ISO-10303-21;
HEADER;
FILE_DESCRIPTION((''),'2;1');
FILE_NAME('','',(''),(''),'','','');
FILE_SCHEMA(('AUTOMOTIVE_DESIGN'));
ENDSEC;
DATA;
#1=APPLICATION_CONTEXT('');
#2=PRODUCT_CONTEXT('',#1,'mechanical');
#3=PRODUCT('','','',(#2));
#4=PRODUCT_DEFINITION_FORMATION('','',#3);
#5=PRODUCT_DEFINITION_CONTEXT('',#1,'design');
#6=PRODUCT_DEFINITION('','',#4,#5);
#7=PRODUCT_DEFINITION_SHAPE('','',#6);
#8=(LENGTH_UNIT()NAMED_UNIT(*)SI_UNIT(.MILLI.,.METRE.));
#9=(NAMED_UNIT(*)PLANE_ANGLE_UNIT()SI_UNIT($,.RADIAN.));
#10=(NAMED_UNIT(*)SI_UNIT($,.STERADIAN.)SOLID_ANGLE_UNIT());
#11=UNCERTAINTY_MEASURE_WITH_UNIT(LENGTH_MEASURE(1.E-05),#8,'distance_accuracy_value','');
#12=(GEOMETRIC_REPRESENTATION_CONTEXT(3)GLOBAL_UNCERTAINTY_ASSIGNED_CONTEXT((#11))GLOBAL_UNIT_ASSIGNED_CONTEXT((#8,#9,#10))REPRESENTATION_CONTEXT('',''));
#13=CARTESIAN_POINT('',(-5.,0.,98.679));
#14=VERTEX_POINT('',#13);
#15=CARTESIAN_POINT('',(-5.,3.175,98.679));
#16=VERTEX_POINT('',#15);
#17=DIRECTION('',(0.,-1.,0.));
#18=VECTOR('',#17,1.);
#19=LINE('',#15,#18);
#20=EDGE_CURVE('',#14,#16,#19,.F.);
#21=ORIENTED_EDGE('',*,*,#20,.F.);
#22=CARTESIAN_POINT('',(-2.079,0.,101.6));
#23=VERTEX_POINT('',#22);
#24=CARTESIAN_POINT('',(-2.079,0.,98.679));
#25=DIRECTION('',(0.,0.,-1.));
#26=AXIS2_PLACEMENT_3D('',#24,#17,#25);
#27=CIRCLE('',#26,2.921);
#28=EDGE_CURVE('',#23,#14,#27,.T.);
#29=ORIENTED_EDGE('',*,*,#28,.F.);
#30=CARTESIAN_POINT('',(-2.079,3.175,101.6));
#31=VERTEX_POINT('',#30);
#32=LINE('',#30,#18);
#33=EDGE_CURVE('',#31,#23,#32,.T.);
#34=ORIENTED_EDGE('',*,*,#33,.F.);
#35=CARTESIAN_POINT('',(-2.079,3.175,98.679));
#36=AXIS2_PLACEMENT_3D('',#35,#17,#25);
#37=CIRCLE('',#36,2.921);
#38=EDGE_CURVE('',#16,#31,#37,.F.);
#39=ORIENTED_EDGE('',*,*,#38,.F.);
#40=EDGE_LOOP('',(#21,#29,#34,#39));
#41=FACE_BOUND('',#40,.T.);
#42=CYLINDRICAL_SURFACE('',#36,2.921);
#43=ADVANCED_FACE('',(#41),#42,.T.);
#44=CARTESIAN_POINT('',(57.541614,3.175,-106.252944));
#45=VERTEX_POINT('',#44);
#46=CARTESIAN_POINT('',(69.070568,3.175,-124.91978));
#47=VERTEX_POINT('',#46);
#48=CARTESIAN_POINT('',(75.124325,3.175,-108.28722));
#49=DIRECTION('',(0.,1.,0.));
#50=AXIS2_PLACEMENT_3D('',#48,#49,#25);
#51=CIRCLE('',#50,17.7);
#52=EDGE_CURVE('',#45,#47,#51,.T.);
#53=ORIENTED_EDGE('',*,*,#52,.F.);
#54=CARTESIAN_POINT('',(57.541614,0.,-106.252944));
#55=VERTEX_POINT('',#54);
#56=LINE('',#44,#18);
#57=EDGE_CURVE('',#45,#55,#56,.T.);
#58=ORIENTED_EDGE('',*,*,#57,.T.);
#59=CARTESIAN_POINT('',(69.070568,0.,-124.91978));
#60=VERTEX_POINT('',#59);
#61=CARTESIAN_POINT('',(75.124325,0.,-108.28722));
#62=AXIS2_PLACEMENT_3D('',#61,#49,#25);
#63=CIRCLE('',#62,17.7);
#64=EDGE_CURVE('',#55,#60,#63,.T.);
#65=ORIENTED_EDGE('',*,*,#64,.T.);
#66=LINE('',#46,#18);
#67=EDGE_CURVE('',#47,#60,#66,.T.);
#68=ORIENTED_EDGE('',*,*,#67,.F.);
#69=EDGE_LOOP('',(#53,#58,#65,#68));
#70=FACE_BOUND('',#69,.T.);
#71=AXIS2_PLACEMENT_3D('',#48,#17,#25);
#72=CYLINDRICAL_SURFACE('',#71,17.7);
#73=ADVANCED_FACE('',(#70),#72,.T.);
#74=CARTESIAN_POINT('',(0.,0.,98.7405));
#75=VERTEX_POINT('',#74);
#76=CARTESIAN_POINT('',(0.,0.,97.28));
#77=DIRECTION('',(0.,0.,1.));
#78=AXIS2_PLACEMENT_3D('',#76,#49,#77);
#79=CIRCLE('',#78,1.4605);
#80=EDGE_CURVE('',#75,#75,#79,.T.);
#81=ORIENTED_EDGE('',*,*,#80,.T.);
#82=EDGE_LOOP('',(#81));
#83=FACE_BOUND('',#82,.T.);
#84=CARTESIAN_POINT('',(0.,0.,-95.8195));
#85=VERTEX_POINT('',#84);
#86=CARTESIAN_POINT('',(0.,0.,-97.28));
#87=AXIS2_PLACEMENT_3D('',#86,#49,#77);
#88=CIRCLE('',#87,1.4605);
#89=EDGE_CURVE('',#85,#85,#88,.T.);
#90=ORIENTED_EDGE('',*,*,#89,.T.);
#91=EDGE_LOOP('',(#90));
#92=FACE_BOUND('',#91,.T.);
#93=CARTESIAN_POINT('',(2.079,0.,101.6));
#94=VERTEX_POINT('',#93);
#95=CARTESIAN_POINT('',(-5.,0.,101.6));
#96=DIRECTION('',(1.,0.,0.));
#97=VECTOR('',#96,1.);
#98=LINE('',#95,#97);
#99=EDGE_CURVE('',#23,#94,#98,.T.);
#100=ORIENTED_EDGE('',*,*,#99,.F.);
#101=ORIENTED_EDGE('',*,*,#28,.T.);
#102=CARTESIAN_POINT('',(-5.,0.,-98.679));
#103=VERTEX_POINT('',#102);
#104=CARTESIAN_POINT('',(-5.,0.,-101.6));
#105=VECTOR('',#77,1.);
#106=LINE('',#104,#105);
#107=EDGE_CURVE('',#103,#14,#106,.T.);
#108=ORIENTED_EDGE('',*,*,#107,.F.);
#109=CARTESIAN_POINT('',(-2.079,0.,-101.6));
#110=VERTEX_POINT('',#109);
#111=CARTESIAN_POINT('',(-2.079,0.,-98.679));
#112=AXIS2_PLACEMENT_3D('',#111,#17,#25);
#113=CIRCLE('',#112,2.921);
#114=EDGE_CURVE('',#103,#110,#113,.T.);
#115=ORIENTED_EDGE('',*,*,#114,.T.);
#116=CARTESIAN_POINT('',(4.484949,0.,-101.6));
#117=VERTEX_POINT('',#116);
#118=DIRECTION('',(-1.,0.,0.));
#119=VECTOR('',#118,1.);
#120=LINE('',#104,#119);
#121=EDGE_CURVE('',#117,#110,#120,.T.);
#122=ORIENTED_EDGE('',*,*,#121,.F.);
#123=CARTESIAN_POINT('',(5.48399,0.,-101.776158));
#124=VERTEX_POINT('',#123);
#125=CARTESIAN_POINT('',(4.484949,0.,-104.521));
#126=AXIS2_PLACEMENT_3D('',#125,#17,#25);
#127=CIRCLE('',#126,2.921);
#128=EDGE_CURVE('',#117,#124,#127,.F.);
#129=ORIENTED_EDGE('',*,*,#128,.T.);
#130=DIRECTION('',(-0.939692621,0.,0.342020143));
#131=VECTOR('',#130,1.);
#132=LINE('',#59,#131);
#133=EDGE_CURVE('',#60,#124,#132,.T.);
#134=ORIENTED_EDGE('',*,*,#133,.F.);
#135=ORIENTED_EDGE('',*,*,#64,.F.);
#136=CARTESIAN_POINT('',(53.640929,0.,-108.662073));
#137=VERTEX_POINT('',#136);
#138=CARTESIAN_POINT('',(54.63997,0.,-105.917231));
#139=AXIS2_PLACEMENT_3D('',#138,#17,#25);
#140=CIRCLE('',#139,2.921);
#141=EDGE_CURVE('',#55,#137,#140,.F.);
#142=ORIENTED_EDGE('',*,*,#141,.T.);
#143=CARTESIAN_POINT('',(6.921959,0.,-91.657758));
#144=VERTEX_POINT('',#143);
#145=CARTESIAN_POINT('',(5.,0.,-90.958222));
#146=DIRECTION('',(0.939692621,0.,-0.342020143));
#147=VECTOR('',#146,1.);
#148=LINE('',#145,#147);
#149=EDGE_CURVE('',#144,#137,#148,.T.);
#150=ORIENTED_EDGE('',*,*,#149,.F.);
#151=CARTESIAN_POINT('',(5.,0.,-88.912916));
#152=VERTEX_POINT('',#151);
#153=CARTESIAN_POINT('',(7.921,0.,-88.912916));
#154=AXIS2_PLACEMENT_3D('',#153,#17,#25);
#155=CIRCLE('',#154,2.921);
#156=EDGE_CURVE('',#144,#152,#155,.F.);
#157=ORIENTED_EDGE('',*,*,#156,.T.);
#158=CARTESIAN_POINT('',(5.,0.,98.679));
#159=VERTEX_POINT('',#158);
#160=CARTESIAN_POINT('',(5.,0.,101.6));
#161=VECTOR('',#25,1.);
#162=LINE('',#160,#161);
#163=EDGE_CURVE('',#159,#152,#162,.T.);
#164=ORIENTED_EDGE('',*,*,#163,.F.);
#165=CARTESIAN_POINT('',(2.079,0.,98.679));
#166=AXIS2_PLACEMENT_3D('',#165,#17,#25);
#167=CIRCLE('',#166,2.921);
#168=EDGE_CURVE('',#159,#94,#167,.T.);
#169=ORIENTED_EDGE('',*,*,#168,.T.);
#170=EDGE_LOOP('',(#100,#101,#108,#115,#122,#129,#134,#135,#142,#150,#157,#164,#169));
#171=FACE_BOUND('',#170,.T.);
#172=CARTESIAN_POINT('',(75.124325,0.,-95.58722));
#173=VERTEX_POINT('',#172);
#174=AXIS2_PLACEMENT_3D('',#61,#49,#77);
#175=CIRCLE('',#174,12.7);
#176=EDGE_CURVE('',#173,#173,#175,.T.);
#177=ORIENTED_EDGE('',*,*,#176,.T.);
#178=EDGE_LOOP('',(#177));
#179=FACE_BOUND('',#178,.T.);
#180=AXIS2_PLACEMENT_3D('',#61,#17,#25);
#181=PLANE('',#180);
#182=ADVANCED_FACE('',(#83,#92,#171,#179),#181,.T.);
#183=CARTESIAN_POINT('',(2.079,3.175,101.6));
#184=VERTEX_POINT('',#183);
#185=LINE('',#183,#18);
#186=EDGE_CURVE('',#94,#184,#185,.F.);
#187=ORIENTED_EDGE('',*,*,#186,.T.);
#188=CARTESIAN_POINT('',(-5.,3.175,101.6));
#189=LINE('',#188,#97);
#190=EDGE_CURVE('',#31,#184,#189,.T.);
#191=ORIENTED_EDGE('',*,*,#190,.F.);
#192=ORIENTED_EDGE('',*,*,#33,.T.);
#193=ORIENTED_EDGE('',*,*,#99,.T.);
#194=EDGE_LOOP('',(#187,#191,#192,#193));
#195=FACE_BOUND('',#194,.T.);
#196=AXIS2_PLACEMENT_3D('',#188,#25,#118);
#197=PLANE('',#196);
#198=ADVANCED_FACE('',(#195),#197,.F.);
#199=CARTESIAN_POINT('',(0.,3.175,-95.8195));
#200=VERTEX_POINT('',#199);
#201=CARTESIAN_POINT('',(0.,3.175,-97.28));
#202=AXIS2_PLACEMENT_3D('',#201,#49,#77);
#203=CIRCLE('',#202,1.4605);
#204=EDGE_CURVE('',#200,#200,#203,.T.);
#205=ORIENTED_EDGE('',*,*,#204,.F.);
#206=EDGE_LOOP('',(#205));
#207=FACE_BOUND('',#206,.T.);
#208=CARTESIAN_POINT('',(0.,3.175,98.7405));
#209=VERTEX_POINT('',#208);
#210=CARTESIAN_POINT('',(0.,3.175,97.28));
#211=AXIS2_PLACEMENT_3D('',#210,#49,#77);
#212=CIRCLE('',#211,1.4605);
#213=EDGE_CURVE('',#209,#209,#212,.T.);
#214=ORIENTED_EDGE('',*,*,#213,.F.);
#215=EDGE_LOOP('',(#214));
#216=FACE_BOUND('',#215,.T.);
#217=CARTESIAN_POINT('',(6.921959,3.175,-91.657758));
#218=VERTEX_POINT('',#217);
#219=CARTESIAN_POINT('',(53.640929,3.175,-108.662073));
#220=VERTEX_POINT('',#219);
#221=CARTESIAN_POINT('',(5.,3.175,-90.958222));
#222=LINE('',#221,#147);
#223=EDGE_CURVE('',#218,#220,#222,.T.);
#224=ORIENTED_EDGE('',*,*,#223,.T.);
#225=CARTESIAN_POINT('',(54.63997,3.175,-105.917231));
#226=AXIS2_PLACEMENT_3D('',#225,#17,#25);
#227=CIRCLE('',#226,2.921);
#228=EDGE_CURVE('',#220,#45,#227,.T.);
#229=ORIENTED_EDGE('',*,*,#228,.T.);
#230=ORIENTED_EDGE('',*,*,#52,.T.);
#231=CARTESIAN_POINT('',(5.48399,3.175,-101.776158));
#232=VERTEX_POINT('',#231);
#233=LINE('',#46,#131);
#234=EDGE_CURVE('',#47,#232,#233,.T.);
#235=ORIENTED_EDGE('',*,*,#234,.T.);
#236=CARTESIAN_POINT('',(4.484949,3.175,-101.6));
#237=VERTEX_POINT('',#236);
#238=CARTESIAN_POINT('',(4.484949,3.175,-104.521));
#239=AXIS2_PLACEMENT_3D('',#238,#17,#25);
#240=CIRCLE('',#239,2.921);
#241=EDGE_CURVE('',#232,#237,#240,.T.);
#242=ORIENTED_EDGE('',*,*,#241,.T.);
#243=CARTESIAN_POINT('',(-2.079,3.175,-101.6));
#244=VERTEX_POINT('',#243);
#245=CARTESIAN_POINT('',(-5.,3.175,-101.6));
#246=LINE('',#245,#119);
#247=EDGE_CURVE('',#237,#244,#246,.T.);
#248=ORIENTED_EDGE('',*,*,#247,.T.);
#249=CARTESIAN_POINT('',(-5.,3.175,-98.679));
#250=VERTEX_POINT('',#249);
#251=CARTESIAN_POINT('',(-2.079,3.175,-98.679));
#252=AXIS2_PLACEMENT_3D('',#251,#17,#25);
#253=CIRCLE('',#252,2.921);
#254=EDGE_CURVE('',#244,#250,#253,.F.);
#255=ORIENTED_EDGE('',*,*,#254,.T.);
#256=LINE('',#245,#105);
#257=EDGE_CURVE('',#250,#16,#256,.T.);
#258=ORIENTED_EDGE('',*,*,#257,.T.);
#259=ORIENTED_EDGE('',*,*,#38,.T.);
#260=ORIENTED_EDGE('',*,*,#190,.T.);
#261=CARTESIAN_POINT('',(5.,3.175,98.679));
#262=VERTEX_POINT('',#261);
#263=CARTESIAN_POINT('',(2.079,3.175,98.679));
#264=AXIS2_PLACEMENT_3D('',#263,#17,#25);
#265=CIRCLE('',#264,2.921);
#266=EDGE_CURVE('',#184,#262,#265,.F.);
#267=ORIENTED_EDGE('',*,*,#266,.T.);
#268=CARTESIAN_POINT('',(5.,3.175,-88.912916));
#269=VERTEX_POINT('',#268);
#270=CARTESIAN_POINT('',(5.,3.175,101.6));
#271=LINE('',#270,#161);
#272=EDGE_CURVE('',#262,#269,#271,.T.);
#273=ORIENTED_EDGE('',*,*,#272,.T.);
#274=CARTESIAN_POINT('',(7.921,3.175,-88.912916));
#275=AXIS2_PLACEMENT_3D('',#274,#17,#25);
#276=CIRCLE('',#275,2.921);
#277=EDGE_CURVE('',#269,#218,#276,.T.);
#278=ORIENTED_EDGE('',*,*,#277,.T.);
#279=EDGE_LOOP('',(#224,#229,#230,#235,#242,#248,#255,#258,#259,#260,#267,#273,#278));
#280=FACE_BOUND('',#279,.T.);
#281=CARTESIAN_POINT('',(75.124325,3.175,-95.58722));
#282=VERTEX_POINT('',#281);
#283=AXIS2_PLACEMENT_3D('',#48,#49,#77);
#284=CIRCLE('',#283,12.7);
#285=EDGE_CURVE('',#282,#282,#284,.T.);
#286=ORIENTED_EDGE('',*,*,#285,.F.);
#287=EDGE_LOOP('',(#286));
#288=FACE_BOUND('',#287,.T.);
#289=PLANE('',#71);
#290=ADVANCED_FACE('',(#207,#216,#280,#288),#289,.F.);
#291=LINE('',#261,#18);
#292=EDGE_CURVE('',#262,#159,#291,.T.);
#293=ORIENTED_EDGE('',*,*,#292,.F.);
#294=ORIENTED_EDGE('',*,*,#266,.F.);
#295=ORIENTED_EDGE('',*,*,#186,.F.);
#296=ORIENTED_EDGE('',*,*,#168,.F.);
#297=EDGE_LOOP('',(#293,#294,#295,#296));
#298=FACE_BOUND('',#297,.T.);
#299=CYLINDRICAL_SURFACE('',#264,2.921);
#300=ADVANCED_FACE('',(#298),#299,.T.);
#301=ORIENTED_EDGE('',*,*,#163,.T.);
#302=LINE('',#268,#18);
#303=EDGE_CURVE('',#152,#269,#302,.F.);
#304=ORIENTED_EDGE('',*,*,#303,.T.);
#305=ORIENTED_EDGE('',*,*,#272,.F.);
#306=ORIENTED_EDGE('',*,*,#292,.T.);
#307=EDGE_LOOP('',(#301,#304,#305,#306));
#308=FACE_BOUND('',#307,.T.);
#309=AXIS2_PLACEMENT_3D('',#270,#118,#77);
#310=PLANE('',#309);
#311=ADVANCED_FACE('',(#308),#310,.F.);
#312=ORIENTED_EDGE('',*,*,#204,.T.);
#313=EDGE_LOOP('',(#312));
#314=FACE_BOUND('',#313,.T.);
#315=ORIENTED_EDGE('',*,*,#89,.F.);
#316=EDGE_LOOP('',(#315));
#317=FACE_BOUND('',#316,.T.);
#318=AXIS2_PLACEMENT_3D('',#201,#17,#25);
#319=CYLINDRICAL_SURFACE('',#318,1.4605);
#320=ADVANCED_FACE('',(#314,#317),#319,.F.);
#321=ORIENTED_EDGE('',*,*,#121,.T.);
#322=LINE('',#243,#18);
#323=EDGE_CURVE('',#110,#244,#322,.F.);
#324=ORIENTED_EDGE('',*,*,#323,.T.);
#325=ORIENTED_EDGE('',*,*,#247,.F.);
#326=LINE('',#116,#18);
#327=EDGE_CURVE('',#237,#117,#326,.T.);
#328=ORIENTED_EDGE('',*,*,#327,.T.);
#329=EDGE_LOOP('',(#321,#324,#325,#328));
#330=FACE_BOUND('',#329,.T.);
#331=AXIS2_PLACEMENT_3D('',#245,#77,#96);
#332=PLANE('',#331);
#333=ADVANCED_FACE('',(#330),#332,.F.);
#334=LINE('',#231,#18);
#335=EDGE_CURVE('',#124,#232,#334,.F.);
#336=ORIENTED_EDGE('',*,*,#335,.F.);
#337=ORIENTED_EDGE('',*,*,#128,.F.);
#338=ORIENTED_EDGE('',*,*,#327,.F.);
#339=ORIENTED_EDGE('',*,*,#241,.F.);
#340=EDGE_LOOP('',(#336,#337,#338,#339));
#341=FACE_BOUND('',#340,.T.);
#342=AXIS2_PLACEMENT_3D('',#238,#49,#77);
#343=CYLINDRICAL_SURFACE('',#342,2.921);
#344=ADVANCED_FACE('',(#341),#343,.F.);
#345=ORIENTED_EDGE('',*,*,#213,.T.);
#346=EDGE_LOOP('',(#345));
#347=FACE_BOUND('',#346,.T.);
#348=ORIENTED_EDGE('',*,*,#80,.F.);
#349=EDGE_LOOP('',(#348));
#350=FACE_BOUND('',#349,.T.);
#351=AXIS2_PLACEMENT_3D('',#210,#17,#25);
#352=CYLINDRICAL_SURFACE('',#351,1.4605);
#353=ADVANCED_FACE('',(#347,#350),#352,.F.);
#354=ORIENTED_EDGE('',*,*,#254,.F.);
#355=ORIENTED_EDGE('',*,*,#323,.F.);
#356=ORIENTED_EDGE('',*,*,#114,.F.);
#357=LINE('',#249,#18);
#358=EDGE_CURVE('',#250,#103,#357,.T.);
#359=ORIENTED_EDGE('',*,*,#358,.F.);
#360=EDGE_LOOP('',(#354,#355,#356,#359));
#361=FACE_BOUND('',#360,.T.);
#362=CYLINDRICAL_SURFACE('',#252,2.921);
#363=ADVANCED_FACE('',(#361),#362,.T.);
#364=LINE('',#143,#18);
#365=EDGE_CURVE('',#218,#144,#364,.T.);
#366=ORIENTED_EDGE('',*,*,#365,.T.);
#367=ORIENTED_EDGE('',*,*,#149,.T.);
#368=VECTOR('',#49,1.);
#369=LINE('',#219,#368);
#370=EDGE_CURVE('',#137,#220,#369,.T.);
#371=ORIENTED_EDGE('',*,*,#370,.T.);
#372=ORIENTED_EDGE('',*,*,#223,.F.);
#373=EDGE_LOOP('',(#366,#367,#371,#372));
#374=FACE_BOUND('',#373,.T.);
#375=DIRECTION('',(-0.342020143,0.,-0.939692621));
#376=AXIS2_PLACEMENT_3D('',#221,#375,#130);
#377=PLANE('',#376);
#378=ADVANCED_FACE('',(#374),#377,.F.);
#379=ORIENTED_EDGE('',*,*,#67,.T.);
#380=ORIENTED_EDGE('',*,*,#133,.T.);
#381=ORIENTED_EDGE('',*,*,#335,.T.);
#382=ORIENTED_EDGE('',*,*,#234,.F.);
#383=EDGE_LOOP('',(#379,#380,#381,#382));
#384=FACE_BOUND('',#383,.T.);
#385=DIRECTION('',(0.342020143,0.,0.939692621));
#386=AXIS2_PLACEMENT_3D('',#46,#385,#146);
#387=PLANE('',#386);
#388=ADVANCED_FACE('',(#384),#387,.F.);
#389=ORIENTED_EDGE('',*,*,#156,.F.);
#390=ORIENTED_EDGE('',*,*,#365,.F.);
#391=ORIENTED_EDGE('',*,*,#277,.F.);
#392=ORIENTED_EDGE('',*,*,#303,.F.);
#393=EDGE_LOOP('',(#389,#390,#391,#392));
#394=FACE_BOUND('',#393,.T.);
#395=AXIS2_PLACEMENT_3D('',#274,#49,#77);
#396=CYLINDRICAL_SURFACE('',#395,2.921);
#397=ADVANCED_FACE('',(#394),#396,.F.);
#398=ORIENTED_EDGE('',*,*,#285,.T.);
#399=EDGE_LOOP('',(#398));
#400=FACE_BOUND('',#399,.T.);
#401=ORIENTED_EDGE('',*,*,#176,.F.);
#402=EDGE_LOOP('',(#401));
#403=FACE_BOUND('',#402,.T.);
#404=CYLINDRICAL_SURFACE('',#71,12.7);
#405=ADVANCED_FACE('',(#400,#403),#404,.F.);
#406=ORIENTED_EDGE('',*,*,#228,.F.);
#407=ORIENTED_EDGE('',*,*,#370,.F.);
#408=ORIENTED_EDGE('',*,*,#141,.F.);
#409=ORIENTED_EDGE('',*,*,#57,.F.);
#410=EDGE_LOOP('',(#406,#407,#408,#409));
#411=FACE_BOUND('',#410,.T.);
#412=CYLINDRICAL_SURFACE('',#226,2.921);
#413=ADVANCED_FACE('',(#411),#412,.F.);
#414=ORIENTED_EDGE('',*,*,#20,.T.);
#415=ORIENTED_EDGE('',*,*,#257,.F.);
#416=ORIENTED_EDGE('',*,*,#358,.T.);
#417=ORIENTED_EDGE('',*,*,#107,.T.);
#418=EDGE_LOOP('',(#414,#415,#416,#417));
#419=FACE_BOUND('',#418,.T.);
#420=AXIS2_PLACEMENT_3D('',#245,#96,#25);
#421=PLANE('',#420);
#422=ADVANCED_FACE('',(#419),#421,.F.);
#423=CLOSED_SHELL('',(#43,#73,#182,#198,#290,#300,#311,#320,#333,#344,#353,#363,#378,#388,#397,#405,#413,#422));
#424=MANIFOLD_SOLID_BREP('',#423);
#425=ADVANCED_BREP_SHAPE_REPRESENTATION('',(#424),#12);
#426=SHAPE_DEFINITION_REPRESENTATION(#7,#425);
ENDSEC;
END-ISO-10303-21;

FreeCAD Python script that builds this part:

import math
import FreeCAD as App
import Part
import Sketcher
Q = App.Units.Quantity


def edges_at(feature, points):
    """Names of the edges that pass closest to the given points."""
    edges = feature.Shape.Edges
    near = lambda p: min(range(len(edges)), key=lambda i: edges[i].distToShape(Part.Vertex(*p))[0])
    return sorted({f"Edge{near(p) + 1}" for p in points})

doc = App.newDocument("Part")
body = doc.addObject("PartDesign::Body", "Body")

sketch1 = doc.addObject("Sketcher::SketchObject", "Sketch")
body.addObject(sketch1)
sketch1.AttachmentSupport = (doc.XZ_Plane, [""])
sketch1.MapMode = "FlatFace"
sketch1.addGeometry(Part.LineSegment(App.Vector(5, 101.6, 0), App.Vector(5, -90.958222, 0)), False)
sketch1.addGeometry(Part.LineSegment(App.Vector(5, -90.958222, 0), App.Vector(57.514534, -110.071949, 0)), False)
sketch1.addGeometry(Part.ArcOfCircle(Part.Circle(App.Vector(75.124325, -108.28722, 0), App.Vector(0, 0, 1), 17.7), math.radians(-110), math.radians(185.787091)), False)
sketch1.addGeometry(Part.LineSegment(App.Vector(69.070568, -124.91978, 0), App.Vector(5, -101.6, 0)), False)
sketch1.addGeometry(Part.LineSegment(App.Vector(5, -101.6, 0), App.Vector(-5, -101.6, 0)), False)
sketch1.addGeometry(Part.LineSegment(App.Vector(-5, -101.6, 0), App.Vector(-5, 101.6, 0)), False)
sketch1.addGeometry(Part.LineSegment(App.Vector(-5, 101.6, 0), App.Vector(5, 101.6, 0)), False)
sketch1.addGeometry(Part.Circle(App.Vector(0, 97.28, 0), App.Vector(0, 0, 1), 1.4605), False)
sketch1.addGeometry(Part.Circle(App.Vector(0, -97.28, 0), App.Vector(0, 0, 1), 1.4605), False)
sketch1.addGeometry(Part.Circle(App.Vector(75.124325, -108.28722, 0), App.Vector(0, 0, 1), 12.7), False)
sketch1.addConstraint(Sketcher.Constraint("Coincident", 0, 2, 1, 1))
sketch1.addConstraint(Sketcher.Constraint("Coincident", 1, 2, 2, 2))
sketch1.addConstraint(Sketcher.Constraint("Tangent", 2, 1, 3, 1))
sketch1.addConstraint(Sketcher.Constraint("Coincident", 3, 2, 4, 1))
sketch1.addConstraint(Sketcher.Constraint("Coincident", 4, 2, 5, 1))
sketch1.addConstraint(Sketcher.Constraint("Coincident", 5, 2, 6, 1))
sketch1.addConstraint(Sketcher.Constraint("Coincident", 6, 2, 0, 1))
sketch1.addConstraint(Sketcher.Constraint("Vertical", 0))
sketch1.addConstraint(Sketcher.Constraint("Horizontal", 4))
sketch1.addConstraint(Sketcher.Constraint("Vertical", 5))
sketch1.addConstraint(Sketcher.Constraint("Horizontal", 6))
sketch1.addConstraint(Sketcher.Constraint("Coincident", 9, 3, 2, 3))
sketch1.addConstraint(Sketcher.Constraint("Equal", 7, 8))
sketch1.addConstraint(Sketcher.Constraint("Symmetric", 7, 3, 8, 3, -1, 1))
sketch1.addConstraint(Sketcher.Constraint("Symmetric", 3, 2, 5, 2, -1, 1))
sketch1.addConstraint(Sketcher.Constraint("PointOnObject", 7, 3, -2))
sketch1.addConstraint(Sketcher.Constraint("Parallel", 1, 3))
sketch1.addConstraint(Sketcher.Constraint("Vertical", 0, 2, 3, 2))
sketch1.addConstraint(Sketcher.Constraint("Diameter", 9, Q("1 in")))
sketch1.addConstraint(Sketcher.Constraint("DistanceY", 5, 1, 5, 2, Q("8 in")))
sketch1.addConstraint(Sketcher.Constraint("Diameter", 7, Q("0.115 in")))
sketch1.addConstraint(Sketcher.Constraint("Angle", 1, Q("-20 deg")))
sketch1.addConstraint(Sketcher.Constraint("Radius", 2, 17.7))
sketch1.addConstraint(Sketcher.Constraint("DistanceX", 4, 2, 4, 1, 10.0))
sketch1.addConstraint(Sketcher.Constraint("DistanceX", 0, 2, 9, 3, Q("2.7608002 in")))
sketch1.addConstraint(Sketcher.Constraint("Distance", 1, 55.8848))
sketch1.addConstraint(Sketcher.Constraint("DistanceY", -1, 1, 7, 3, 97.28))
pad1 = doc.addObject("PartDesign::Pad", "Pad")
body.addObject(pad1)
pad1.Profile = sketch1
pad1.Length = Q("0.125 in")
pad1.Reversed = True
doc.recompute()

fillet = doc.addObject("PartDesign::Fillet", "Fillet")
body.addObject(fillet)
fillet.Base = (pad1, edges_at(pad1, [
    (-5, 1.587, 101.6),
    (-5, 1.587, -101.6),
    (5, 1.587, -101.6),
    (57.515, 1.587, -110.072),
    (5, 1.587, -90.958),
    (5, 1.587, 101.6),
]))
fillet.Radius = Q("0.115 in")

doc.recompute()
